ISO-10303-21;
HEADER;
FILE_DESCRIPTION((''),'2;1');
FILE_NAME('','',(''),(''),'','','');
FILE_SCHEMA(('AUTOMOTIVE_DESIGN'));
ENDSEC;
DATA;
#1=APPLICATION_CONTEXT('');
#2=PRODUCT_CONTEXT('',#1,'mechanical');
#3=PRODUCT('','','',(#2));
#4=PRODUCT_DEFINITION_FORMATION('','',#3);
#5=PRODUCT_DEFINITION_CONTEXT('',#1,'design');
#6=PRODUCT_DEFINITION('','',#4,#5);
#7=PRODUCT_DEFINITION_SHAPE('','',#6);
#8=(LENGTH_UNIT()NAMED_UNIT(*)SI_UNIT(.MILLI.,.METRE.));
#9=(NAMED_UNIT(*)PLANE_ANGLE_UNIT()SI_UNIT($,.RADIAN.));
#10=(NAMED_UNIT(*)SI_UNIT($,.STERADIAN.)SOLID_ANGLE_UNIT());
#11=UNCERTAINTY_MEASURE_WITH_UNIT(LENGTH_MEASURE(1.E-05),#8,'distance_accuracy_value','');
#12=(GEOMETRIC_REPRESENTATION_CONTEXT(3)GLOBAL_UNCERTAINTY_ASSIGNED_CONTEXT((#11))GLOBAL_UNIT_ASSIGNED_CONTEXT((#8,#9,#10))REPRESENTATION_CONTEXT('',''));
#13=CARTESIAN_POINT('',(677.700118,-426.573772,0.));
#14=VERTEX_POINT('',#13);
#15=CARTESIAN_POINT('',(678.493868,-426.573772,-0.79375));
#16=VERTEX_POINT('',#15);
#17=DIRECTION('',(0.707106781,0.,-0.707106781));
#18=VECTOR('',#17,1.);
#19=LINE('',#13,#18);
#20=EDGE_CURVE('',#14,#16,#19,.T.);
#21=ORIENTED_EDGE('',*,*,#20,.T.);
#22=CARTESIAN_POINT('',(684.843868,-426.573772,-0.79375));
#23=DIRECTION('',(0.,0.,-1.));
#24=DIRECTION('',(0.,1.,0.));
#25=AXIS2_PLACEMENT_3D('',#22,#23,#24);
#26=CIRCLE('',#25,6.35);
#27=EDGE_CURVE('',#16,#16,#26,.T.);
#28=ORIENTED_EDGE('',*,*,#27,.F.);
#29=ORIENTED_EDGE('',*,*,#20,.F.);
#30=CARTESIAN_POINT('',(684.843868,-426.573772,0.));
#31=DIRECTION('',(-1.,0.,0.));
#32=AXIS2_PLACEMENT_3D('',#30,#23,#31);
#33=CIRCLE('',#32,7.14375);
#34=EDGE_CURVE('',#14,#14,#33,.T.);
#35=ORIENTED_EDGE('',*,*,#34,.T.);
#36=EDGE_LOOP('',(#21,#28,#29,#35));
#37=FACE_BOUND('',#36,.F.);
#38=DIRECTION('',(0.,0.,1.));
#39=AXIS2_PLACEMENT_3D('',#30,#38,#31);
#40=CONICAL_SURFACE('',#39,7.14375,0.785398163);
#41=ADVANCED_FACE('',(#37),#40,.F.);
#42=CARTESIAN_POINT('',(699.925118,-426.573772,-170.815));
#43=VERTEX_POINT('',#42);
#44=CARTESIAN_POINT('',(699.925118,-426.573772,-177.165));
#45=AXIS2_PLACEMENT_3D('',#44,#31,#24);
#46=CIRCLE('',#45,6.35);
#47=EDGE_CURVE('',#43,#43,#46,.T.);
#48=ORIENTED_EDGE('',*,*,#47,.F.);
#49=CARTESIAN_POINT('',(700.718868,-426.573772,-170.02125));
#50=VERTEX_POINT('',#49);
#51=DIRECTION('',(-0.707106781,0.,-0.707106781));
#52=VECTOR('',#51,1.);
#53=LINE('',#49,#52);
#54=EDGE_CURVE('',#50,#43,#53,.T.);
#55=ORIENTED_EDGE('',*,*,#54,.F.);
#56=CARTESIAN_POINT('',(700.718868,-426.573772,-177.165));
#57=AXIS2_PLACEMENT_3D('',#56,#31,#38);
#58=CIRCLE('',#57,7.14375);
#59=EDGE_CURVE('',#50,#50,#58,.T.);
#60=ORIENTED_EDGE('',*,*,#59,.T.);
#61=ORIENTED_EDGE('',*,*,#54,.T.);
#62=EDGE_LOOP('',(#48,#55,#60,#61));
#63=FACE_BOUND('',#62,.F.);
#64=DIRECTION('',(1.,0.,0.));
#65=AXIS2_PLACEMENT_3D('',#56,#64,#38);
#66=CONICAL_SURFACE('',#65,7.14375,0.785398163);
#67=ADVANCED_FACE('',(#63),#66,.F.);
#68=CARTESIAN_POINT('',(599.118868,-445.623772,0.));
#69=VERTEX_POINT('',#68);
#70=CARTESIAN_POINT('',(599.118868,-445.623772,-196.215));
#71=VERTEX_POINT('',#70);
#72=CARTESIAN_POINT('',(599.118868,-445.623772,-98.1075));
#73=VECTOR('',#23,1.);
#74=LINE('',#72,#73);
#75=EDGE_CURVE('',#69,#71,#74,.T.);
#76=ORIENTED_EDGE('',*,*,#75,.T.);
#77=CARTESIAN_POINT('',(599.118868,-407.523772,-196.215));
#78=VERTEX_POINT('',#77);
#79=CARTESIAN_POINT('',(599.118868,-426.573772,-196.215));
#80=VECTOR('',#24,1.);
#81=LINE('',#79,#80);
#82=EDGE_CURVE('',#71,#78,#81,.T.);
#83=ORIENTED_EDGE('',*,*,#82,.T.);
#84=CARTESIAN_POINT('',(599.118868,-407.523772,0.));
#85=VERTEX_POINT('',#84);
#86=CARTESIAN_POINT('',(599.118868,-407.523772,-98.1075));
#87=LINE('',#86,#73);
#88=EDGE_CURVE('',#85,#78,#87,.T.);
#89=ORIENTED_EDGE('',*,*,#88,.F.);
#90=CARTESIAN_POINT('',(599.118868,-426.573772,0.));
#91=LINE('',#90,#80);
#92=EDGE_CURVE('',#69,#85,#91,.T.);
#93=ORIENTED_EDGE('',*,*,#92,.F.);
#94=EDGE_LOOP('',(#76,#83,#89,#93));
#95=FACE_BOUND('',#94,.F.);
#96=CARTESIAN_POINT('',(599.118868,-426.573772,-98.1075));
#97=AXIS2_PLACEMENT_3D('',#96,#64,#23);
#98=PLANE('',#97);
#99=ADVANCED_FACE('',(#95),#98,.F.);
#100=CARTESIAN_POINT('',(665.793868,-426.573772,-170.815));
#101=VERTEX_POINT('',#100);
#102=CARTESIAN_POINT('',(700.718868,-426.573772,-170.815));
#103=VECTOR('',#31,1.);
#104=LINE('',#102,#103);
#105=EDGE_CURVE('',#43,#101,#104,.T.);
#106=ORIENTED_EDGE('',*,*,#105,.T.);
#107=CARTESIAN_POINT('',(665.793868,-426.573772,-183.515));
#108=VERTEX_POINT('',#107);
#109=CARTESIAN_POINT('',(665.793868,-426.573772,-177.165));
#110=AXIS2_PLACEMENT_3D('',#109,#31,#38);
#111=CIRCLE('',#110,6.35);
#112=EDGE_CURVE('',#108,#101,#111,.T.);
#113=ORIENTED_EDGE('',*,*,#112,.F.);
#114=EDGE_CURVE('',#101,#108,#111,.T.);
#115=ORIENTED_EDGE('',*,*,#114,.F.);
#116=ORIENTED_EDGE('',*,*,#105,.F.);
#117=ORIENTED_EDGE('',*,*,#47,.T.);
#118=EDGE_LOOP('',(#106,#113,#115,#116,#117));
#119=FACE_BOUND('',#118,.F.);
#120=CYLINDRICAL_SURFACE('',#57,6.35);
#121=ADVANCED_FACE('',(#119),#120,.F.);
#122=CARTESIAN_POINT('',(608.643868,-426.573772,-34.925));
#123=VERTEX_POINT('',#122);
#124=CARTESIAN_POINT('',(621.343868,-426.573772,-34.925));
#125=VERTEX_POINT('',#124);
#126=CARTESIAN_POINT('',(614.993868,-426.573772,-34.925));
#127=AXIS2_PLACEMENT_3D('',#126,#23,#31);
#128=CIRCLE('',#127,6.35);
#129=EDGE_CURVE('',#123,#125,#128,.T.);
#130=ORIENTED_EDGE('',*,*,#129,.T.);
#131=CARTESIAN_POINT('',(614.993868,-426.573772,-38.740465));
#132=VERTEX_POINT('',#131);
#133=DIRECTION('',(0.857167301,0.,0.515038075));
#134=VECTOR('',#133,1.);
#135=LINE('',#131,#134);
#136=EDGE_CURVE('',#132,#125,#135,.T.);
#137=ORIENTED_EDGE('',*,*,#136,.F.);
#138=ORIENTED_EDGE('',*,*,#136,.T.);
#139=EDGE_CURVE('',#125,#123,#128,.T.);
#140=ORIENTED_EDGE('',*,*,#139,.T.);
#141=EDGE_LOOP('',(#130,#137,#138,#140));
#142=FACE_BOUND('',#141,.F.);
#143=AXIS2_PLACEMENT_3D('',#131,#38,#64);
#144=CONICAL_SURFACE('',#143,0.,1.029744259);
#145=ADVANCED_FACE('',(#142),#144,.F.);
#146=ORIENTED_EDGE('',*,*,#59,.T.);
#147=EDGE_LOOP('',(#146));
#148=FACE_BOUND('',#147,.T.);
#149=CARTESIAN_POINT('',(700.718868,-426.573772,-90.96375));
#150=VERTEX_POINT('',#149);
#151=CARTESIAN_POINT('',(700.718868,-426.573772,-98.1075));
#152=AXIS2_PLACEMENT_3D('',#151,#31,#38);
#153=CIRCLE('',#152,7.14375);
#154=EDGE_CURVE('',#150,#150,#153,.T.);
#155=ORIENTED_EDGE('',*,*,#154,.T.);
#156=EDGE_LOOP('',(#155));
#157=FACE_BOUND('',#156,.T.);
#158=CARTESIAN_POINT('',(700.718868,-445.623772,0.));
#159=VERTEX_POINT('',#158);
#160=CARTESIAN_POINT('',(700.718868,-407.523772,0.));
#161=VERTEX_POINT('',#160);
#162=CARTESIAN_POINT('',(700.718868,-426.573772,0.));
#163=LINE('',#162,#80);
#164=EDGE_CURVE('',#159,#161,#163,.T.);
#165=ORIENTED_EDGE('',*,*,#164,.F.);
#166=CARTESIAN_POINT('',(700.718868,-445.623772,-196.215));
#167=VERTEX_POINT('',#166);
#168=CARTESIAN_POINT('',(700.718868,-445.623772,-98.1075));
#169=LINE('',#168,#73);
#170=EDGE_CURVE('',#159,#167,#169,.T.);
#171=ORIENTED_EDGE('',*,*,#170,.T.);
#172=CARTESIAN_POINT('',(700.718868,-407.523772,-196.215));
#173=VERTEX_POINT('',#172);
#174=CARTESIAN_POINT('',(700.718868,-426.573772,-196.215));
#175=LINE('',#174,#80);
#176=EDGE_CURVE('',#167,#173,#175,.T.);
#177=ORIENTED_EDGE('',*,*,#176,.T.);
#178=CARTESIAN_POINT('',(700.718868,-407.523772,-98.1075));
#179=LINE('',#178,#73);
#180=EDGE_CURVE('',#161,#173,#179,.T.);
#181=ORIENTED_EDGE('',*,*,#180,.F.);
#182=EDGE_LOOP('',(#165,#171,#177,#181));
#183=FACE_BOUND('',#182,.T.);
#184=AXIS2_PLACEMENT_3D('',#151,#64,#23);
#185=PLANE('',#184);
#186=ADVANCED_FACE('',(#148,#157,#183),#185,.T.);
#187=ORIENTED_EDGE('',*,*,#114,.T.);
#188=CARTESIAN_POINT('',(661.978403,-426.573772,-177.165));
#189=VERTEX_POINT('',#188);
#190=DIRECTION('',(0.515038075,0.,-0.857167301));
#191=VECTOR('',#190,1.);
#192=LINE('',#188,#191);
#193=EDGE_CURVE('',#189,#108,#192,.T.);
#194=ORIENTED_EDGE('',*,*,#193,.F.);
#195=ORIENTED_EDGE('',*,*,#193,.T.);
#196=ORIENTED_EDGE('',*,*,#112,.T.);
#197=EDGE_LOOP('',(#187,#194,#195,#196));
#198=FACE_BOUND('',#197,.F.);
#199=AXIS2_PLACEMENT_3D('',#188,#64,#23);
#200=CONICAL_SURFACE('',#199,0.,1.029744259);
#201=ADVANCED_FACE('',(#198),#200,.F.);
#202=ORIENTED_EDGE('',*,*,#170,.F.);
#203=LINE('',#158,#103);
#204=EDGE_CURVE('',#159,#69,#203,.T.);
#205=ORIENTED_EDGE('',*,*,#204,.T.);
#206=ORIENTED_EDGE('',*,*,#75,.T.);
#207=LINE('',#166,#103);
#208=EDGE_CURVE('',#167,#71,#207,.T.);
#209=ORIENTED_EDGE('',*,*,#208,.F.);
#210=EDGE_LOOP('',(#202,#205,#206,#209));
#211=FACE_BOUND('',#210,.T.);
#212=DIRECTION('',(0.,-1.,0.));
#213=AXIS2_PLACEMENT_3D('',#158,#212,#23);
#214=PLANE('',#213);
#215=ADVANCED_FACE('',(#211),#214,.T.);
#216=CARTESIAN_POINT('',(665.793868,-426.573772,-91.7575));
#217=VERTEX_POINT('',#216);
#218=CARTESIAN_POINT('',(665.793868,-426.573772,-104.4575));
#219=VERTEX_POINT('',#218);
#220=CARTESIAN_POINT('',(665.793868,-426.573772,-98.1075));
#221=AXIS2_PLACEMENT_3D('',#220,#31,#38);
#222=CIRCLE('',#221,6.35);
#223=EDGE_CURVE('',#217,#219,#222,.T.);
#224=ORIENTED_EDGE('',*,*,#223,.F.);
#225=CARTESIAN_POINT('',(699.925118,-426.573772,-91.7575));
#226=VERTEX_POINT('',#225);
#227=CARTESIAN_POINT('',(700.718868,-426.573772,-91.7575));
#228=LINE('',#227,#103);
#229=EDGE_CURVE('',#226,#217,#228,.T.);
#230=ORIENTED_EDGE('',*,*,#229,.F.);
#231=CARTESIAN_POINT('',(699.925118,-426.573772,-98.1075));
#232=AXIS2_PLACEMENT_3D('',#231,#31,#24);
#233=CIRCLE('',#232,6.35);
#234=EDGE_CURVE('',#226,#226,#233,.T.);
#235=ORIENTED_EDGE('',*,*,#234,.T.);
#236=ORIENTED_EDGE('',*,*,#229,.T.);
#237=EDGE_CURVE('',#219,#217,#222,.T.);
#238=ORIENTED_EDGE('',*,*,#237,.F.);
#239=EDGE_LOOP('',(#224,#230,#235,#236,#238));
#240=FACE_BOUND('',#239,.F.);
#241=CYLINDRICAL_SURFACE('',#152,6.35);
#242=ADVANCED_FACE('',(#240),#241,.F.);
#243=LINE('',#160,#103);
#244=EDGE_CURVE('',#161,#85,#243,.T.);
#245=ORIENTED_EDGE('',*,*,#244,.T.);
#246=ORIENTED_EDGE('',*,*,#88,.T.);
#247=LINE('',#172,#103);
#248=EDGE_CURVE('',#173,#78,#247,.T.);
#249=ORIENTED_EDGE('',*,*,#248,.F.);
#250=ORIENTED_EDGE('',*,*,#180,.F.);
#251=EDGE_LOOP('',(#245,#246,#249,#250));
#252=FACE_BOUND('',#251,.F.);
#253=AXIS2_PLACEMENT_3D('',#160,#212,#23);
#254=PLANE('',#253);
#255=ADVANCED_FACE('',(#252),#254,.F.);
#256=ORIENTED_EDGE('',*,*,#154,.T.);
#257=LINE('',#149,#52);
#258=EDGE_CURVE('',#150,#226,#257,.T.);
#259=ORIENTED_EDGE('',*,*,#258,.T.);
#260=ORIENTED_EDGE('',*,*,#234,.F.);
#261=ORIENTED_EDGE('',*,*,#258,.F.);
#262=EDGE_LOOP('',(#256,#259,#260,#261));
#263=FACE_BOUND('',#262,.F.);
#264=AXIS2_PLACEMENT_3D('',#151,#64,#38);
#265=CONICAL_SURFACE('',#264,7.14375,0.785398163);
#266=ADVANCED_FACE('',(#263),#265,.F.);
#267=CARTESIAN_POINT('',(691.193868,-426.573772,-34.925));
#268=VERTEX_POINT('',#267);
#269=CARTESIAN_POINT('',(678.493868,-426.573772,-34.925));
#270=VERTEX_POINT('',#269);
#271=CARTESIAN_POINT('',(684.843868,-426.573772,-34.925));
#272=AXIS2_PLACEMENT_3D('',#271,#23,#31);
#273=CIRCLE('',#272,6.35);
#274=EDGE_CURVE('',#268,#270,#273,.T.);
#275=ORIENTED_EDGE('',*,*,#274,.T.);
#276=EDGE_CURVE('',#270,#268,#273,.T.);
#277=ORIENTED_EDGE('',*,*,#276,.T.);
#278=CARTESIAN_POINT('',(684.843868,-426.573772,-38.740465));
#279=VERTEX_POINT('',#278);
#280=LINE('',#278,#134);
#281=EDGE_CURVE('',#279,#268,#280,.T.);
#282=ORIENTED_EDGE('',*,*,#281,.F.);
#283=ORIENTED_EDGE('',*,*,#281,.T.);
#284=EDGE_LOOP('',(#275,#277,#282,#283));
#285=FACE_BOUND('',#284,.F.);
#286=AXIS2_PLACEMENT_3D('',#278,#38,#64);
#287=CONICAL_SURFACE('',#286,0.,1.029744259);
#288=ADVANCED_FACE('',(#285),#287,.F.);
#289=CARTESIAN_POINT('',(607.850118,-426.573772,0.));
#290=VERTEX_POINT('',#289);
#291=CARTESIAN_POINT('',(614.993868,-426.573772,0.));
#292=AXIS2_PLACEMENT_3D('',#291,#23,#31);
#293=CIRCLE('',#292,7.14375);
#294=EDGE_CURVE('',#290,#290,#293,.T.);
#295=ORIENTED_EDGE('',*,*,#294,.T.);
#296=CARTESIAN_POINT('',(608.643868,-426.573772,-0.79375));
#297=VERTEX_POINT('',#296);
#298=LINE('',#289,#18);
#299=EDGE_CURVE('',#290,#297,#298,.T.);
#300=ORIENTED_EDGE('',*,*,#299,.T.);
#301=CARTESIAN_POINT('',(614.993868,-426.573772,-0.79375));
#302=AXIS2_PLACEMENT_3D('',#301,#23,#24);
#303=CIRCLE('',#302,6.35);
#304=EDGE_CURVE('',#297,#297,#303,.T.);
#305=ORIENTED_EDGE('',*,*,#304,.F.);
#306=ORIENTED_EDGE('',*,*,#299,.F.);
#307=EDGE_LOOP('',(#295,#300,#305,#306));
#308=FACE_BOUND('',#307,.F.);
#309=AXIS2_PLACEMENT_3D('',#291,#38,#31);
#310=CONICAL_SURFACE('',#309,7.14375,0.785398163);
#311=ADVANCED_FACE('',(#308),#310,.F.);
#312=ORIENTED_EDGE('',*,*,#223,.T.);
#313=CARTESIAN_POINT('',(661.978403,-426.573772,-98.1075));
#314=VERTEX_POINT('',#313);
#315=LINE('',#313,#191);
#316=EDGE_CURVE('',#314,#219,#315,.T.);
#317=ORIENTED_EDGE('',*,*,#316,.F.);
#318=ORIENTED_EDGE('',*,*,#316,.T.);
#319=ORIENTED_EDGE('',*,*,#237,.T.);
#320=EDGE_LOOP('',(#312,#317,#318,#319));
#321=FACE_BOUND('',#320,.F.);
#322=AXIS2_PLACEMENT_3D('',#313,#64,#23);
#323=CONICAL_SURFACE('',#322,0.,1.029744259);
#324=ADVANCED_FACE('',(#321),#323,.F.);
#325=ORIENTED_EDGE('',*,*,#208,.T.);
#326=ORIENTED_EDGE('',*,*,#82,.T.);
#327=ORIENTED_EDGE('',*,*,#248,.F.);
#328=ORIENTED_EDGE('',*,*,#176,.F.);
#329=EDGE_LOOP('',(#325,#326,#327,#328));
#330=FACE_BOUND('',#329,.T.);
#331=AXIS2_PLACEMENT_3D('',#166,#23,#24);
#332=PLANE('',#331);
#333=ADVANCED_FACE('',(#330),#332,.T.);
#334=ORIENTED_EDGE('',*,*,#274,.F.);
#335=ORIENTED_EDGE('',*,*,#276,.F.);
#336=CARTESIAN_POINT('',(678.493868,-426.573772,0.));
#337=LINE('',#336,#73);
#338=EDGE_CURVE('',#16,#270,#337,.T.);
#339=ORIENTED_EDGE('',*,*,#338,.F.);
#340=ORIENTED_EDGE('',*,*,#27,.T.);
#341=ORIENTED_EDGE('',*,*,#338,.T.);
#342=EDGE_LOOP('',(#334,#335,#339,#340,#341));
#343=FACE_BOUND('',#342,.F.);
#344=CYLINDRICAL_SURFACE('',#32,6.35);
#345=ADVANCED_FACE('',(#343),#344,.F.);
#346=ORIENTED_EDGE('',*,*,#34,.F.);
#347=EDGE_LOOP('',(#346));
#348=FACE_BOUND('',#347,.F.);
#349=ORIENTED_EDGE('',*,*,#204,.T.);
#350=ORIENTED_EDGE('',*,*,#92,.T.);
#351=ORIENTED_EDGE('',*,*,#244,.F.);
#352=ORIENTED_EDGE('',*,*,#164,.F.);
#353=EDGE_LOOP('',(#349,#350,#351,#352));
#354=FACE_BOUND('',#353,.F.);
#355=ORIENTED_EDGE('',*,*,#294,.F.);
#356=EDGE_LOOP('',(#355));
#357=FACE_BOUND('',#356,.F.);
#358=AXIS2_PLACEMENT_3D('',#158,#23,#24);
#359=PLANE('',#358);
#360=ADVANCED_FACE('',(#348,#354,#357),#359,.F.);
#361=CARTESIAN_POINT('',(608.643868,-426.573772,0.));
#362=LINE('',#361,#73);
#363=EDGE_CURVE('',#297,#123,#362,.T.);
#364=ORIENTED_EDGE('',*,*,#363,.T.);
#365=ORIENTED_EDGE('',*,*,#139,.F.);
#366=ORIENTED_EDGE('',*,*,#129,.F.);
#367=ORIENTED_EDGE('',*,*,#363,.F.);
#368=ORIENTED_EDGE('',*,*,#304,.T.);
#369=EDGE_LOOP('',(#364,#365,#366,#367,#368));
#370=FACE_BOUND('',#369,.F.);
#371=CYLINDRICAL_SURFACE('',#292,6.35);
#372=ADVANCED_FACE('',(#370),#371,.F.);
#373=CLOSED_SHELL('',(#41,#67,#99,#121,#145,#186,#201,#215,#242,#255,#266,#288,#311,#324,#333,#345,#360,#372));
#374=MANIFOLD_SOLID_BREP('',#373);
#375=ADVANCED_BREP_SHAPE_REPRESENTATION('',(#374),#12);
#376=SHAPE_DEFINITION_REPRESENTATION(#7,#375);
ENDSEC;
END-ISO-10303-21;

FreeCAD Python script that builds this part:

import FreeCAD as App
import Part
import Sketcher
Q = App.Units.Quantity

doc = App.newDocument("Part")
body = doc.addObject("PartDesign::Body", "Body")

# Sketch on XY plane
sketch1 = body.newObject("Sketcher::SketchObject", "Sketch")
sketch1.AttachmentSupport = (doc.getObject("XY_Plane"), [""])
sketch1.MapMode = "FlatFace"
sketch1.addGeometry([
    Part.LineSegment(App.Vector(751.518868, -407.523772, 0), App.Vector(751.518868, -445.623772, 0)),
    Part.LineSegment(App.Vector(751.518868, -445.623772, 0), App.Vector(947.733868, -445.623772, 0)),
    Part.LineSegment(App.Vector(947.733868, -445.623772, 0), App.Vector(947.733868, -407.523772, 0)),
    Part.LineSegment(App.Vector(947.733868, -407.523772, 0), App.Vector(751.518868, -407.523772, 0)),
], False)
sketch1.addConstraint([
    Sketcher.Constraint("Coincident", 0, 2, 1, 1),
    Sketcher.Constraint("Coincident", 1, 2, 2, 1),
    Sketcher.Constraint("Coincident", 2, 2, 3, 1),
    Sketcher.Constraint("Coincident", 3, 2, 0, 1),
    Sketcher.Constraint("Vertical", 0),
    Sketcher.Constraint("Horizontal", 1),
    Sketcher.Constraint("Vertical", 2),
    Sketcher.Constraint("Horizontal", 3),
    Sketcher.Constraint("DistanceY", 0, 2, 0, 1, Q("1.5 in")),
    Sketcher.Constraint("DistanceX", 1, 1, 1, 2, Q("7.725 in")),
    Sketcher.Constraint("DistanceX", -1, 1, 0, 2, Q("751.518868 mm")),
    Sketcher.Constraint("DistanceY", 0, 2, -1, 1, Q("445.623772 mm")),
])
pad1 = body.newObject("PartDesign::Pad", "Pad")
pad1.Profile = sketch1
pad1.Length = Q("4 in")
pad1.Reversed = True

# Sketch on XY plane
sketch2 = body.newObject("Sketcher::SketchObject", "Sketch001")
sketch2.AttachmentSupport = (doc.getObject("XY_Plane"), [""])
sketch2.MapMode = "FlatFace"
sketch2.addGeometry([
    Part.Circle(App.Vector(928.683868, -426.573772, 0), App.Vector(0, 0, 1), 6.35),
    Part.Circle(App.Vector(849.626368, -426.573772, 0), App.Vector(0, 0, 1), 6.35),
], False)
sketch2.addConstraint([
    Sketcher.Constraint("Equal", 0, 1),
    Sketcher.Constraint("Horizontal", 0, 3, 1, 3),
    Sketcher.Constraint("Diameter", 0, Q("0.5 in")),
    Sketcher.Constraint("DistanceX", 1, 3, 0, 3, Q("3.1125 in")),
    Sketcher.Constraint("DistanceX", -1, 1, 0, 3, Q("928.683868 mm")),
    Sketcher.Constraint("DistanceY", 0, 3, -1, 1, Q("426.573772 mm")),
])
doc.recompute()
hole = body.newObject("PartDesign::Hole", "Hole")
hole.Profile = sketch2
hole.ThreadType = "None"
hole.Diameter = Q("0.5 in")
hole.DepthType = "Dimension"
hole.Depth = Q("1.375 in")
hole.DrillPoint = "Angled"
hole.DrillPointAngle = 118
hole.HoleCutType = "Countersink"
hole.HoleCutDiameter = Q("0.5625 in")
hole.HoleCutCountersinkAngle = 90
body2 = doc.addObject("PartDesign::Body", "Body001")
doc.recompute()

body.Placement = App.Placement(App.Vector(751.518868, 0, 751.518868), App.Rotation(App.Vector(0, -1, 0), 270))
boolean = body2.newObject("PartDesign::Boolean", "Boolean")
boolean.Type = "Fuse"
boolean.addObjects([body])
body3 = doc.addObject("PartDesign::Body", "Body002")
doc.recompute()

body2.Placement = App.Placement(App.Vector(-50.8, 0, 0), App.Rotation(App.Vector(0, 0, 1), 0))
boolean2 = body3.newObject("PartDesign::Boolean", "Boolean001")
boolean2.Type = "Fuse"
boolean2.addObjects([body2])

# Sketch on XY plane
sketch3 = body3.newObject("Sketcher::SketchObject", "Sketch002")
sketch3.AttachmentSupport = (doc.getObject("XY_Plane002"), [""])
sketch3.MapMode = "FlatFace"
sketch3.addGeometry([
    Part.Circle(App.Vector(614.993868, -426.573772, 0), App.Vector(0, 0, 1), 6.35),
    Part.Circle(App.Vector(684.843868, -426.573772, 0), App.Vector(0, 0, 1), 6.35),
], False)
sketch3.addConstraint([
    Sketcher.Constraint("Equal", 0, 1),
    Sketcher.Constraint("Horizontal", 0, 3, 1, 3),
    Sketcher.Constraint("Diameter", 0, Q("0.5 in")),
    Sketcher.Constraint("DistanceX", 0, 3, 1, 3, Q("2.75 in")),
    Sketcher.Constraint("DistanceX", -1, 1, 0, 3, Q("614.993868 mm")),
    Sketcher.Constraint("DistanceY", 0, 3, -1, 1, Q("426.573772 mm")),
])
doc.recompute()
hole2 = body3.newObject("PartDesign::Hole", "Hole001")
hole2.Profile = sketch3
hole2.ThreadType = "None"
hole2.Diameter = Q("0.5 in")
hole2.DepthType = "Dimension"
hole2.Depth = Q("1.375 in")
hole2.DrillPoint = "Angled"
hole2.DrillPointAngle = 118
hole2.HoleCutType = "Countersink"
hole2.HoleCutDiameter = Q("0.5625 in")
hole2.HoleCutCountersinkAngle = 90

doc.recompute()
